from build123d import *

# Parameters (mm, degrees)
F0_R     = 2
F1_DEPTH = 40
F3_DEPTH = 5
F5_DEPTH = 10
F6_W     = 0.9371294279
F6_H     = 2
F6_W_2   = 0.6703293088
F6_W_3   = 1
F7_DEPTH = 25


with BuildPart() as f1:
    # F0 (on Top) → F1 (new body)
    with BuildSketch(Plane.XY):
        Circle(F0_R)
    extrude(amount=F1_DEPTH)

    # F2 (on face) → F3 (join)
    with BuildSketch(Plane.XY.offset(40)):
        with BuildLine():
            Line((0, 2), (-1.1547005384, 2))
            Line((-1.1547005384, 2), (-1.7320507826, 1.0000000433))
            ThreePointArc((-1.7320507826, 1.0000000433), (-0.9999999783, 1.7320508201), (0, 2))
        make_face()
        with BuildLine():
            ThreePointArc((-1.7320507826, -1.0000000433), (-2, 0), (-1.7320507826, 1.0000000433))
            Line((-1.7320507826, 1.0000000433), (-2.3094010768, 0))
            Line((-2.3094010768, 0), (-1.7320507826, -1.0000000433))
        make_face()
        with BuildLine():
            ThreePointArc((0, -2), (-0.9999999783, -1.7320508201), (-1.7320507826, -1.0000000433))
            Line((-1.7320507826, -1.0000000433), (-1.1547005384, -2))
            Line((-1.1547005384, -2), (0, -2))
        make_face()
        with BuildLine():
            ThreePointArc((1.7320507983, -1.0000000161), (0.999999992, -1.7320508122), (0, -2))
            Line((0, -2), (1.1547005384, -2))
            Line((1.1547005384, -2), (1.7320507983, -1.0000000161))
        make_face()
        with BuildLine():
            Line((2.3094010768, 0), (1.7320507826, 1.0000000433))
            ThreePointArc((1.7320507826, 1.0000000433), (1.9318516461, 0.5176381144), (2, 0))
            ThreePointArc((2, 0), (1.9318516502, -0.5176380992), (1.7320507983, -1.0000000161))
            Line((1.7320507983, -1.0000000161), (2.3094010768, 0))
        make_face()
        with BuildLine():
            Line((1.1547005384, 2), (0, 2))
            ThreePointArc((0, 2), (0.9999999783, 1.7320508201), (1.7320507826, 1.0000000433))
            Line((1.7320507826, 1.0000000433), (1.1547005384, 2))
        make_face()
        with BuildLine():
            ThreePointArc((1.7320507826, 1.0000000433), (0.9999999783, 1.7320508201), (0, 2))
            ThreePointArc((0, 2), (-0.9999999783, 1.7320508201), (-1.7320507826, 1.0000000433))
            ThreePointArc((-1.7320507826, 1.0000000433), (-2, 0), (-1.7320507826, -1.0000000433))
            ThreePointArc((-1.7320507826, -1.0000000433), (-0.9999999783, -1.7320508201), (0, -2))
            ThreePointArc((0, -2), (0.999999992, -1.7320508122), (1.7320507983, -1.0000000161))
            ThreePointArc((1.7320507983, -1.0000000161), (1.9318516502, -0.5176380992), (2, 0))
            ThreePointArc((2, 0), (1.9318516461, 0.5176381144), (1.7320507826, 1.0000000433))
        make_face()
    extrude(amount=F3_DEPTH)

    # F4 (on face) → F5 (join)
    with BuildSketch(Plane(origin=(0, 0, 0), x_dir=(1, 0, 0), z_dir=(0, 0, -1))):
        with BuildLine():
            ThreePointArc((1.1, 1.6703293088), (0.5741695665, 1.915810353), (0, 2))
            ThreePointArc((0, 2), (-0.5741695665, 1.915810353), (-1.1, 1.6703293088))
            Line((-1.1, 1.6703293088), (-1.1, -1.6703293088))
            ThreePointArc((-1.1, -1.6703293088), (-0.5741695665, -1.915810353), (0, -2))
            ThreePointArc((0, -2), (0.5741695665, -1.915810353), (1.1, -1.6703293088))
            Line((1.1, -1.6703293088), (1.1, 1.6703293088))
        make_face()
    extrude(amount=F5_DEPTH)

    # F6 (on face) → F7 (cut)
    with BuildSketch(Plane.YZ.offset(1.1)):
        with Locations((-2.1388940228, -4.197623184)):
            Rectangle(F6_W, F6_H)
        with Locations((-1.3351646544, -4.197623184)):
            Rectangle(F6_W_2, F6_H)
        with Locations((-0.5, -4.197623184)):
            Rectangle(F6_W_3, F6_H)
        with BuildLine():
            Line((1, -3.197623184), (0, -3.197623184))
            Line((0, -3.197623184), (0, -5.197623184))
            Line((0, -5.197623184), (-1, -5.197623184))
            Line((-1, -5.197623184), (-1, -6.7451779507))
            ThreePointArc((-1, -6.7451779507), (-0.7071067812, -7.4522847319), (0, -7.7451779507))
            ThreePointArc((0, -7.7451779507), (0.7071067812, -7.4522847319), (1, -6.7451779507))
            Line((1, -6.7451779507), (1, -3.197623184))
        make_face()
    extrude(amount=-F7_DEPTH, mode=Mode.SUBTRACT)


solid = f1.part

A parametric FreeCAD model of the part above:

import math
import FreeCAD as App
import Part
import Sketcher
Q = App.Units.Quantity


def add_polygon(sketch, points):
    """Adds a closed chain of lines whose ends are joined by coincident constraints."""
    first, n = sketch.GeometryCount, len(points)
    for a, b in zip(points, points[1:] + points[:1]):
        sketch.addGeometry(Part.LineSegment(App.Vector(*a, 0), App.Vector(*b, 0)), False)
    for i in range(n):
        sketch.addConstraint(Sketcher.Constraint("Coincident", first + i, 2, first + (i + 1) % n, 1))

doc = App.newDocument("Part")
body = doc.addObject("PartDesign::Body", "Body")

sketch1 = body.newObject("Sketcher::SketchObject", "Sketch")
sketch1.AttachmentSupport = (doc.getObject("XY_Plane"), [""])
sketch1.MapMode = "FlatFace"
sketch1.addGeometry(Part.Circle(App.Vector(0, 0, 0), App.Vector(0, 0, 1), 2), False)
sketch1.addConstraint([
    Sketcher.Constraint("Coincident", 0, 3, -1, 1),
    Sketcher.Constraint("Diameter", 0, Q("4 mm")),
])
pad1 = body.newObject("PartDesign::Pad", "Pad")
pad1.Profile = sketch1
pad1.Length = 40

sketch2 = body.newObject("Sketcher::SketchObject", "Sketch001")
sketch2.AttachmentSupport = (doc.getObject("XY_Plane"), [""])
sketch2.MapMode = "FlatFace"
sketch2.AttachmentOffset = App.Placement(App.Vector(0, 0, 40), App.Rotation())
add_polygon(sketch2, [(-1.2, 2), (-1.7, 1), (-2.3, 0), (-1.7, -1), (-1.2, -2), (1.2, -2), (1.7, -1), (2.3, 0), (1.7, 1), (1.2, 2)])
sketch2.addConstraint([
    Sketcher.Constraint("Horizontal", 4),
    Sketcher.Constraint("Horizontal", 9),
    Sketcher.Constraint("Symmetric", 0, 2, 5, 2, -1, 1),
    Sketcher.Constraint("Symmetric", 1, 2, 6, 2, -1, 1),
    Sketcher.Constraint("Symmetric", 2, 2, 7, 2, -1, 1),
    Sketcher.Constraint("Symmetric", 3, 2, 8, 2, -1, 1),
    Sketcher.Constraint("Symmetric", 2, 2, 5, 2, -2),
    Sketcher.Constraint("PointOnObject", 1, 2, -1),
    Sketcher.Constraint("Parallel", 0, 1),
    Sketcher.Constraint("Parallel", 2, 3),
    Sketcher.Constraint("Parallel", 1, 5),
    Sketcher.Constraint("Equal", 0, 1),
    Sketcher.Constraint("Angle", 0, Q("-120 deg")),
    Sketcher.Constraint("DistanceY", -1, 1, 0, 2, Q("1 mm")),
    Sketcher.Constraint("DistanceX", 4, 1, 4, 2, Q("2.309401 mm")),
])
pad2 = body.newObject("PartDesign::Pad", "Pad001")
pad2.Profile = sketch2
pad2.Length = 5

sketch3 = body.newObject("Sketcher::SketchObject", "Sketch002")
sketch3.AttachmentSupport = (doc.getObject("XY_Plane"), [""])
sketch3.MapMode = "FlatFace"
sketch3.addGeometry([
    Part.ArcOfCircle(Part.Circle(App.Vector(0, 0, 0), App.Vector(0, 0, 1), 2), math.radians(-90), math.radians(-57)),
    Part.ArcOfCircle(Part.Circle(App.Vector(0, 0, 0), App.Vector(0, 0, 1), 2), math.radians(-123), math.radians(-90)),
    Part.LineSegment(App.Vector(-1.1, -1.7, 0), App.Vector(-1.1, 1.7, 0)),
    Part.ArcOfCircle(Part.Circle(App.Vector(0, 0, 0), App.Vector(0, 0, 1), 2), math.radians(90), math.radians(123)),
    Part.ArcOfCircle(Part.Circle(App.Vector(0, 0, 0), App.Vector(0, 0, 1), 2), math.radians(57), math.radians(90)),
    Part.LineSegment(App.Vector(1.1, 1.7, 0), App.Vector(1.1, -1.7, 0)),
], False)
sketch3.addConstraint([
    Sketcher.Constraint("Tangent", 0, 1, 1, 2),
    Sketcher.Constraint("Coincident", 1, 1, 2, 1),
    Sketcher.Constraint("Coincident", 2, 2, 3, 2),
    Sketcher.Constraint("Tangent", 3, 1, 4, 2),
    Sketcher.Constraint("Coincident", 4, 1, 5, 1),
    Sketcher.Constraint("Coincident", 5, 2, 0, 2),
    Sketcher.Constraint("Vertical", 2),
    Sketcher.Constraint("Vertical", 5),
    Sketcher.Constraint("Coincident", 0, 3, -1, 1),
    Sketcher.Constraint("Coincident", 3, 3, -1, 1),
    Sketcher.Constraint("Equal", 0, 1),
    Sketcher.Constraint("Equal", 1, 3),
    Sketcher.Constraint("Equal", 3, 4),
    Sketcher.Constraint("PointOnObject", 0, 1, -2),
    Sketcher.Constraint("PointOnObject", 3, 1, -2),
    Sketcher.Constraint("Horizontal", 2, 2, 4, 1),
    Sketcher.Constraint("Radius", 0, Q("2 mm")),
    Sketcher.Constraint("DistanceX", 1, 1, -1, 1, Q("1.1 mm")),
])
pad3 = body.newObject("PartDesign::Pad", "Pad002")
pad3.Profile = sketch3
pad3.Length = 10
pad3.Reversed = True

sketch4 = body.newObject("Sketcher::SketchObject", "Sketch003")
sketch4.AttachmentSupport = (doc.getObject("YZ_Plane"), [""])
sketch4.MapMode = "FlatFace"
sketch4.AttachmentOffset = App.Placement(App.Vector(0, 0, 1.1), App.Rotation())
sketch4.addGeometry([
    Part.LineSegment(App.Vector(-2.6, -3.2, 0), App.Vector(-2.6, -5.2, 0)),
    Part.LineSegment(App.Vector(-2.6, -5.2, 0), App.Vector(-1, -5.2, 0)),
    Part.LineSegment(App.Vector(-1, -5.2, 0), App.Vector(-1, -6.7, 0)),
    Part.ArcOfCircle(Part.Circle(App.Vector(0, -6.7, 0), App.Vector(0, 0, 1), 1), math.radians(180), math.radians(270)),
    Part.ArcOfCircle(Part.Circle(App.Vector(0, -6.7, 0), App.Vector(0, 0, 1), 1), math.radians(-90), math.radians(0)),
    Part.LineSegment(App.Vector(1, -6.7, 0), App.Vector(1, -3.2, 0)),
    Part.LineSegment(App.Vector(1, -3.2, 0), App.Vector(-2.6, -3.2, 0)),
], False)
sketch4.addConstraint([
    Sketcher.Constraint("Coincident", 0, 2, 1, 1),
    Sketcher.Constraint("Coincident", 1, 2, 2, 1),
    Sketcher.Constraint("Tangent", 2, 2, 3, 1),
    Sketcher.Constraint("Tangent", 3, 2, 4, 1),
    Sketcher.Constraint("Tangent", 4, 2, 5, 1),
    Sketcher.Constraint("Coincident", 5, 2, 6, 1),
    Sketcher.Constraint("Coincident", 6, 2, 0, 1),
    Sketcher.Constraint("Vertical", 0),
    Sketcher.Constraint("Horizontal", 1),
    Sketcher.Constraint("Vertical", 2),
    Sketcher.Constraint("Vertical", 5),
    Sketcher.Constraint("Horizontal", 6),
    Sketcher.Constraint("Equal", 3, 4),
    Sketcher.Constraint("PointOnObject", 3, 3, -2),
    Sketcher.Constraint("PointOnObject", 3, 2, -2),
    Sketcher.Constraint("Radius", 3, Q("1 mm")),
    Sketcher.Constraint("DistanceY", 0, 2, 0, 1, Q("2 mm")),
    Sketcher.Constraint("DistanceX", 1, 1, 1, 2, Q("1.607459 mm")),
    Sketcher.Constraint("DistanceY", 2, 2, 2, 1, Q("1.547555 mm")),
    Sketcher.Constraint("DistanceY", 3, 3, -1, 1, Q("6.745178 mm")),
])
pocket1 = body.newObject("PartDesign::Pocket", "Pocket")
pocket1.Profile = sketch4
pocket1.Length = 25

doc.recompute()
